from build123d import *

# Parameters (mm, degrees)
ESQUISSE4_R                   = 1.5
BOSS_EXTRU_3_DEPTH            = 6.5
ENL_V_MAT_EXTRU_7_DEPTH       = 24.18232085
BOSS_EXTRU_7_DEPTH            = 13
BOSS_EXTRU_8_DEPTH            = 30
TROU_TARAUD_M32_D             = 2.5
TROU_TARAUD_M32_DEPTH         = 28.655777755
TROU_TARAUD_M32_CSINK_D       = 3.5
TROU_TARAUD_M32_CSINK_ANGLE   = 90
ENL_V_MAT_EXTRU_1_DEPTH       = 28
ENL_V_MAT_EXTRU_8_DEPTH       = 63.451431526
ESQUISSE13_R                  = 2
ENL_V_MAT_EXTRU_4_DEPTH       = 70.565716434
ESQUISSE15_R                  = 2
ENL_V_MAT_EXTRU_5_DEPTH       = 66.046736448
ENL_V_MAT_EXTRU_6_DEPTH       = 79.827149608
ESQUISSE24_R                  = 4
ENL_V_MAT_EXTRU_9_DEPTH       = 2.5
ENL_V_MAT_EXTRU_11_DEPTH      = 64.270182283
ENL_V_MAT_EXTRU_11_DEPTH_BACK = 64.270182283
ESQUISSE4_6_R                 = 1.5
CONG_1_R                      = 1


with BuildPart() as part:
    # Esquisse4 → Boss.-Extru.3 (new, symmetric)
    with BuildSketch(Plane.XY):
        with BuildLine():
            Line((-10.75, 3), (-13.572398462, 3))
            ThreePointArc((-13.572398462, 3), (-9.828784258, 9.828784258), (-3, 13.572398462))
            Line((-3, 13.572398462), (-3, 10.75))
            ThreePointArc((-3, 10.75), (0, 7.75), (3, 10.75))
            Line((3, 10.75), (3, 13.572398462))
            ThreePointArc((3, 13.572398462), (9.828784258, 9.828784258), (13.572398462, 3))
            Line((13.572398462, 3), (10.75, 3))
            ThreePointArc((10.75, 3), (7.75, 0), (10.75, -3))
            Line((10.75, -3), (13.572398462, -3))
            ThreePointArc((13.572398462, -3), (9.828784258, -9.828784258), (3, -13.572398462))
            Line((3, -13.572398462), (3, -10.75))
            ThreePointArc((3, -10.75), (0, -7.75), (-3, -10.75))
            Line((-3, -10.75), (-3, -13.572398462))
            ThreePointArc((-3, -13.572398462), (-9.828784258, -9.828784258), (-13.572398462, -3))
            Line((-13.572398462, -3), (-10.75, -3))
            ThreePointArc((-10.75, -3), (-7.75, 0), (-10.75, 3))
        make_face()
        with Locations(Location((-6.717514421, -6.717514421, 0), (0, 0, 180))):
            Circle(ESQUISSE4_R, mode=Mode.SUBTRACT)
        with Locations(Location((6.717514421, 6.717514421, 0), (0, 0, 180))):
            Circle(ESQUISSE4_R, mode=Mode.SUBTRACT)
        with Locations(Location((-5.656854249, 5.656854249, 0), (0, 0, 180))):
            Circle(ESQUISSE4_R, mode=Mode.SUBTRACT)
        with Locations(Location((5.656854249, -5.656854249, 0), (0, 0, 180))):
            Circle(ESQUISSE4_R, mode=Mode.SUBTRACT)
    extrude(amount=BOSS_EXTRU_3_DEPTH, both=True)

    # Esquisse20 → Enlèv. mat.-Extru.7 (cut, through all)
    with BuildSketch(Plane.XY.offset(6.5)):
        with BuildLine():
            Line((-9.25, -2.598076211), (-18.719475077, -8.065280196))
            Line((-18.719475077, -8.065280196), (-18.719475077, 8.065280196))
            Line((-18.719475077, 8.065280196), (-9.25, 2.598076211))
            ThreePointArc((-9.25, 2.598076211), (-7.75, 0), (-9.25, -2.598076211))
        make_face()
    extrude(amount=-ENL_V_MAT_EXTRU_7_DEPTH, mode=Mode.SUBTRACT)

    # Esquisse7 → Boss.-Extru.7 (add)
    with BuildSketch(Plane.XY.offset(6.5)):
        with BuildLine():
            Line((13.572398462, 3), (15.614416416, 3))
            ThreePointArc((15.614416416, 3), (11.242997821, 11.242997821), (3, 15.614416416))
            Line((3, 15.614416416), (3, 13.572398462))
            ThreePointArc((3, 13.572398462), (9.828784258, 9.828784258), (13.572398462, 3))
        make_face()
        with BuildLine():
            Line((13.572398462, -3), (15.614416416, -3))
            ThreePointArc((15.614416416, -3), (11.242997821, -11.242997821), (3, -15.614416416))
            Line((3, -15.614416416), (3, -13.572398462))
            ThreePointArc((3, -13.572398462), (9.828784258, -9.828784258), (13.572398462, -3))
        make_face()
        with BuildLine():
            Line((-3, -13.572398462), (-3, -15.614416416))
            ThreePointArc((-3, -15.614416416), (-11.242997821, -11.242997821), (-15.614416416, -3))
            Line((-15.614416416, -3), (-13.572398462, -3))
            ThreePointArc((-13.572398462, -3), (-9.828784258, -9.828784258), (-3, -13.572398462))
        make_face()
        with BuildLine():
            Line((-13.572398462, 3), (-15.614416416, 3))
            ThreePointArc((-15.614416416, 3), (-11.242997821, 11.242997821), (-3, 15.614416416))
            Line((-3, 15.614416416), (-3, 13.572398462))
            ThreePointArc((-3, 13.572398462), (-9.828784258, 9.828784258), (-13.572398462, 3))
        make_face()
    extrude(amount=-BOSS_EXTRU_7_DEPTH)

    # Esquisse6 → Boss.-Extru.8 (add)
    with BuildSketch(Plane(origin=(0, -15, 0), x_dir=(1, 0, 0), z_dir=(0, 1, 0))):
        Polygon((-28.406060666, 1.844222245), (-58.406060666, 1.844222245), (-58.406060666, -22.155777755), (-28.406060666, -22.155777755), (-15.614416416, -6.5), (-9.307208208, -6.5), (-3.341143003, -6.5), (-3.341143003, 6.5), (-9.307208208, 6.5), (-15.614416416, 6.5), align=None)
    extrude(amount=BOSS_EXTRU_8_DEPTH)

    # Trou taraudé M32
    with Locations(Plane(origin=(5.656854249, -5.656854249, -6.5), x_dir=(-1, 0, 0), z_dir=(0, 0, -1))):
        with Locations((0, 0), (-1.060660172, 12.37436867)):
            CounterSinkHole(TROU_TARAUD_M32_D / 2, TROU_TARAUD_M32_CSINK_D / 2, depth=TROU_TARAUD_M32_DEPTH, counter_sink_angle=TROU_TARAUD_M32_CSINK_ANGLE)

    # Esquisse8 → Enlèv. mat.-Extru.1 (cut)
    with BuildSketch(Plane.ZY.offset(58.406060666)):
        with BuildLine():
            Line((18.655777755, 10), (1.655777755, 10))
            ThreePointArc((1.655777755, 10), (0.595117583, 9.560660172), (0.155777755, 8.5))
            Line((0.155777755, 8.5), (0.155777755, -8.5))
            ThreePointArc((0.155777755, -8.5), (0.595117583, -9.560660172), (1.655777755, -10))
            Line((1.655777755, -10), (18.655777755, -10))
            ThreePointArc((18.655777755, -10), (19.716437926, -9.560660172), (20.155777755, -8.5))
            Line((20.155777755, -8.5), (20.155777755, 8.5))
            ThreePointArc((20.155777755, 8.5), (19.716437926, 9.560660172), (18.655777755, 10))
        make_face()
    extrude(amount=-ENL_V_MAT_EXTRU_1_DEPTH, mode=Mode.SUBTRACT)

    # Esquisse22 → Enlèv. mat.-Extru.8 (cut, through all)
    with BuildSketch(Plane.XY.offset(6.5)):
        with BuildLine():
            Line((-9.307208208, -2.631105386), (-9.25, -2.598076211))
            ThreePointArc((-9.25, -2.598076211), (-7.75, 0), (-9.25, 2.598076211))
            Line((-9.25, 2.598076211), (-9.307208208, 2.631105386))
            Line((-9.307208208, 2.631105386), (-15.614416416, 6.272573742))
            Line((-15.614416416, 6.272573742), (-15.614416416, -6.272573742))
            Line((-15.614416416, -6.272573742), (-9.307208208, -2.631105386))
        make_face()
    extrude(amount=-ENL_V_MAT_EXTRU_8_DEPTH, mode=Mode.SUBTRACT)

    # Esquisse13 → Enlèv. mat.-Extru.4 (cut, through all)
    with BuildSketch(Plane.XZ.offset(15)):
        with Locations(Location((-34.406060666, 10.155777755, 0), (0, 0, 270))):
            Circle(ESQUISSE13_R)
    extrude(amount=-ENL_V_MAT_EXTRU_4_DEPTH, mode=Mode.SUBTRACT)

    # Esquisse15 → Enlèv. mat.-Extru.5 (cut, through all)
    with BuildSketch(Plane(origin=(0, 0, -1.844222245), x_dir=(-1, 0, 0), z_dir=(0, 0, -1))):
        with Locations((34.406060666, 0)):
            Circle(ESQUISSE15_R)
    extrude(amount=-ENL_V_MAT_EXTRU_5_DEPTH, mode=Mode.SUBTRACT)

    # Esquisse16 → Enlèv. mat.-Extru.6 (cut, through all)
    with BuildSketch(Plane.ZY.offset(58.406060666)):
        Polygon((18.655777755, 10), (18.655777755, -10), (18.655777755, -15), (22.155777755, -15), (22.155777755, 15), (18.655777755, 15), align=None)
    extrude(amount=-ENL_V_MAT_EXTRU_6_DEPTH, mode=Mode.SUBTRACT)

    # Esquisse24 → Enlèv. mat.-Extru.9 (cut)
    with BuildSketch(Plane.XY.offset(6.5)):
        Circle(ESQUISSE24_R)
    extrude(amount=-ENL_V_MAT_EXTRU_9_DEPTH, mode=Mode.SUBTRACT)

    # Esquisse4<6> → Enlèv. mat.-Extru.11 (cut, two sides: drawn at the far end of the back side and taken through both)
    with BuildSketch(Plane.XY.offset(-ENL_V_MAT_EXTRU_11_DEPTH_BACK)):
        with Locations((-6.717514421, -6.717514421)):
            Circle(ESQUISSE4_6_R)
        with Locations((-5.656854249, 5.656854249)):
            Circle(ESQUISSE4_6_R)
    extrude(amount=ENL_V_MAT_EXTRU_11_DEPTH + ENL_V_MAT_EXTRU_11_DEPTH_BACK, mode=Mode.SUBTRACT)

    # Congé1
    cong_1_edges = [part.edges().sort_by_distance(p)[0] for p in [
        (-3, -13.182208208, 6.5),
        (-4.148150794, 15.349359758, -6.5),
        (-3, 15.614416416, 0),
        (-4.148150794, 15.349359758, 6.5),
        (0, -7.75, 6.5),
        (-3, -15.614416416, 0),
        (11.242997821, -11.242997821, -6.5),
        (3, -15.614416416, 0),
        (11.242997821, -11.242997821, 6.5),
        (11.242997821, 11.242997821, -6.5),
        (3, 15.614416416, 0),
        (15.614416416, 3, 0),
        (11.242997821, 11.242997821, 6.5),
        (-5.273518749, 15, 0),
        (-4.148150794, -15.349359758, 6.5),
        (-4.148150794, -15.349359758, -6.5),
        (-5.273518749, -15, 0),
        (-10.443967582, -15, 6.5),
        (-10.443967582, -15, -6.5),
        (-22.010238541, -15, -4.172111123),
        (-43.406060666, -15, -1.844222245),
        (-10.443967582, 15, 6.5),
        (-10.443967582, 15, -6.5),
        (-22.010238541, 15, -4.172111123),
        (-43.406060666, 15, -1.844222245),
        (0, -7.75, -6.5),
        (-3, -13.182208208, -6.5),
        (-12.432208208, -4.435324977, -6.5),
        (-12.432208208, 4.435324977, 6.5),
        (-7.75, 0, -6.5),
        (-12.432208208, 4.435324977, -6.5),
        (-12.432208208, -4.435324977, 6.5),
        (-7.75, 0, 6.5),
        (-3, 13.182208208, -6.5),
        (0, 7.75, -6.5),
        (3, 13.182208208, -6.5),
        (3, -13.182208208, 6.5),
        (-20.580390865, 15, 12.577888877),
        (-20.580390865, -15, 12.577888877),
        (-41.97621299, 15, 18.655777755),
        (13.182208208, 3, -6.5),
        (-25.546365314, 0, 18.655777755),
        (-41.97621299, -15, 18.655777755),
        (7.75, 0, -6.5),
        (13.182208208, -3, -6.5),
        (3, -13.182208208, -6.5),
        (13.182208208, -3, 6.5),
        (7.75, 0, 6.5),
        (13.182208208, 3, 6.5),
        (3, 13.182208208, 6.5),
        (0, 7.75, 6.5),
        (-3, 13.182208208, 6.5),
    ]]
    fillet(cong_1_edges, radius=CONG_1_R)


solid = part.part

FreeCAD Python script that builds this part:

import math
import FreeCAD as App
import Part
import Sketcher
Q = App.Units.Quantity


def edges_at(feature, points):
    """Names of the edges that pass closest to the given points."""
    edges = feature.Shape.Edges
    near = lambda p: min(range(len(edges)), key=lambda i: edges[i].distToShape(Part.Vertex(*p))[0])
    return sorted({f"Edge{near(p) + 1}" for p in points})

doc = App.newDocument("Part")
body = doc.addObject("PartDesign::Body", "Body")

sketch1 = body.newObject("Sketcher::SketchObject", "Sketch")
sketch1.AttachmentSupport = (doc.getObject("XY_Plane"), [""])
sketch1.MapMode = "FlatFace"
sketch1.addGeometry(Part.LineSegment(App.Vector(-13.6, 3, 0), App.Vector(-10.8, 3, 0)), False)
sketch1.addGeometry(Part.ArcOfCircle(Part.Circle(App.Vector(-10.8, 0, 0), App.Vector(0, 0, 1), 3), math.radians(-90), math.radians(90)), False)
sketch1.addGeometry(Part.LineSegment(App.Vector(-10.8, -3, 0), App.Vector(-13.6, -3, 0)), False)
sketch1.addGeometry(Part.ArcOfCircle(Part.Circle(App.Vector(0, 0, 0), App.Vector(0, 0, 1), 13.9), math.radians(-168), math.radians(-102)), False)
sketch1.addGeometry(Part.LineSegment(App.Vector(-3, -13.6, 0), App.Vector(-3, -10.8, 0)), False)
sketch1.addGeometry(Part.ArcOfCircle(Part.Circle(App.Vector(0, -10.8, 0), App.Vector(0, 0, 1), 3), math.radians(0), math.radians(180)), False)
sketch1.addGeometry(Part.LineSegment(App.Vector(3, -10.8, 0), App.Vector(3, -13.6, 0)), False)
sketch1.addGeometry(Part.ArcOfCircle(Part.Circle(App.Vector(0, 0, 0), App.Vector(0, 0, 1), 13.9), math.radians(-78), math.radians(-12)), False)
sketch1.addGeometry(Part.LineSegment(App.Vector(13.6, -3, 0), App.Vector(10.8, -3, 0)), False)
sketch1.addGeometry(Part.ArcOfCircle(Part.Circle(App.Vector(10.8, 0, 0), App.Vector(0, 0, 1), 3), math.radians(90), math.radians(270)), False)
sketch1.addGeometry(Part.LineSegment(App.Vector(10.8, 3, 0), App.Vector(13.6, 3, 0)), False)
sketch1.addGeometry(Part.ArcOfCircle(Part.Circle(App.Vector(0, 0, 0), App.Vector(0, 0, 1), 13.9), math.radians(12), math.radians(78)), False)
sketch1.addGeometry(Part.LineSegment(App.Vector(3, 13.6, 0), App.Vector(3, 10.8, 0)), False)
sketch1.addGeometry(Part.ArcOfCircle(Part.Circle(App.Vector(0, 10.8, 0), App.Vector(0, 0, 1), 3), math.radians(180), math.radians(360)), False)
sketch1.addGeometry(Part.LineSegment(App.Vector(-3, 10.8, 0), App.Vector(-3, 13.6, 0)), False)
sketch1.addGeometry(Part.ArcOfCircle(Part.Circle(App.Vector(0, 0, 0), App.Vector(0, 0, 1), 13.9), math.radians(102), math.radians(168)), False)
sketch1.addGeometry(Part.Circle(App.Vector(5.7, -5.7, 0), App.Vector(0, 0, 1), 1.5), False)
sketch1.addGeometry(Part.Circle(App.Vector(-6.7, -6.7, 0), App.Vector(0, 0, 1), 1.5), False)
sketch1.addGeometry(Part.Circle(App.Vector(6.7, 6.7, 0), App.Vector(0, 0, 1), 1.5), False)
sketch1.addGeometry(Part.Circle(App.Vector(-5.7, 5.7, 0), App.Vector(0, 0, 1), 1.5), False)
sketch1.addConstraint(Sketcher.Constraint("Tangent", 0, 2, 1, 2))
sketch1.addConstraint(Sketcher.Constraint("Tangent", 1, 1, 2, 1))
sketch1.addConstraint(Sketcher.Constraint("Coincident", 2, 2, 3, 1))
sketch1.addConstraint(Sketcher.Constraint("Coincident", 3, 2, 4, 1))
sketch1.addConstraint(Sketcher.Constraint("Tangent", 4, 2, 5, 2))
sketch1.addConstraint(Sketcher.Constraint("Tangent", 5, 1, 6, 1))
sketch1.addConstraint(Sketcher.Constraint("Coincident", 6, 2, 7, 1))
sketch1.addConstraint(Sketcher.Constraint("Coincident", 7, 2, 8, 1))
sketch1.addConstraint(Sketcher.Constraint("Tangent", 8, 2, 9, 2))
sketch1.addConstraint(Sketcher.Constraint("Tangent", 9, 1, 10, 1))
sketch1.addConstraint(Sketcher.Constraint("Coincident", 10, 2, 11, 1))
sketch1.addConstraint(Sketcher.Constraint("Coincident", 11, 2, 12, 1))
sketch1.addConstraint(Sketcher.Constraint("Tangent", 12, 2, 13, 2))
sketch1.addConstraint(Sketcher.Constraint("Tangent", 13, 1, 14, 1))
sketch1.addConstraint(Sketcher.Constraint("Coincident", 14, 2, 15, 1))
sketch1.addConstraint(Sketcher.Constraint("Coincident", 15, 2, 0, 1))
sketch1.addConstraint(Sketcher.Constraint("Horizontal", 0))
sketch1.addConstraint(Sketcher.Constraint("Horizontal", 2))
sketch1.addConstraint(Sketcher.Constraint("Vertical", 4))
sketch1.addConstraint(Sketcher.Constraint("Vertical", 6))
sketch1.addConstraint(Sketcher.Constraint("Horizontal", 8))
sketch1.addConstraint(Sketcher.Constraint("Horizontal", 10))
sketch1.addConstraint(Sketcher.Constraint("Vertical", 12))
sketch1.addConstraint(Sketcher.Constraint("Vertical", 14))
sketch1.addConstraint(Sketcher.Constraint("Coincident", 3, 3, -1, 1))
sketch1.addConstraint(Sketcher.Constraint("Coincident", 7, 3, -1, 1))
sketch1.addConstraint(Sketcher.Constraint("Coincident", 11, 3, -1, 1))
sketch1.addConstraint(Sketcher.Constraint("Coincident", 15, 3, -1, 1))
sketch1.addConstraint(Sketcher.Constraint("Equal", 1, 5))
sketch1.addConstraint(Sketcher.Constraint("Equal", 3, 7))
sketch1.addConstraint(Sketcher.Constraint("Equal", 5, 9))
sketch1.addConstraint(Sketcher.Constraint("Equal", 7, 11))
sketch1.addConstraint(Sketcher.Constraint("Equal", 9, 13))
sketch1.addConstraint(Sketcher.Constraint("Equal", 11, 15))
sketch1.addConstraint(Sketcher.Constraint("Equal", 16, 17))
sketch1.addConstraint(Sketcher.Constraint("Equal", 17, 18))
sketch1.addConstraint(Sketcher.Constraint("Equal", 18, 19))
sketch1.addConstraint(Sketcher.Constraint("Symmetric", 1, 3, 9, 3, -1, 1))
sketch1.addConstraint(Sketcher.Constraint("Symmetric", 5, 3, 13, 3, -1, 1))
sketch1.addConstraint(Sketcher.Constraint("Symmetric", 17, 3, 18, 3, -1, 1))
sketch1.addConstraint(Sketcher.Constraint("Symmetric", 16, 3, 19, 3, -1, 1))
sketch1.addConstraint(Sketcher.Constraint("PointOnObject", 1, 3, -1))
sketch1.addConstraint(Sketcher.Constraint("PointOnObject", 5, 3, -2))
sketch1.addConstraint(Sketcher.Constraint("Equal", 10, 4))
sketch1.addConstraint(Sketcher.Constraint("Diameter", 16, Q("3 mm")))
sketch1.addConstraint(Sketcher.Constraint("Radius", 1, Q("3 mm")))
sketch1.addConstraint(Sketcher.Constraint("Radius", 3, Q("13.9 mm")))
sketch1.addConstraint(Sketcher.Constraint("DistanceX", 1, 3, 9, 3, Q("21.5 mm")))
sketch1.addConstraint(Sketcher.Constraint("DistanceX", -1, 1, 16, 3, Q("5.656854 mm")))
sketch1.addConstraint(Sketcher.Constraint("DistanceY", 16, 3, -1, 1, Q("5.656854 mm")))
sketch1.addConstraint(Sketcher.Constraint("DistanceX", 17, 3, -1, 1, Q("6.717514 mm")))
sketch1.addConstraint(Sketcher.Constraint("DistanceY", 17, 3, -1, 1, Q("6.717514 mm")))
pad1 = body.newObject("PartDesign::Pad", "Pad")
pad1.Profile = sketch1
pad1.Length = 13
pad1.Midplane = True

sketch2 = body.newObject("Sketcher::SketchObject", "Sketch001")
sketch2.AttachmentSupport = (doc.getObject("XY_Plane"), [""])
sketch2.MapMode = "FlatFace"
sketch2.AttachmentOffset = App.Placement(App.Vector(0, 0, 6.5), App.Rotation())
sketch2.addGeometry(Part.LineSegment(App.Vector(-18.7, -8.1, 0), App.Vector(-9.2, -2.6, 0)), False)
sketch2.addGeometry(Part.ArcOfCircle(Part.Circle(App.Vector(-10.7, 0, 0), App.Vector(0, 0, 1), 3), math.radians(-60), math.radians(60)), False)
sketch2.addGeometry(Part.LineSegment(App.Vector(-9.2, 2.6, 0), App.Vector(-18.7, 8.1, 0)), False)
sketch2.addGeometry(Part.LineSegment(App.Vector(-18.7, 8.1, 0), App.Vector(-18.7, -8.1, 0)), False)
sketch2.addConstraint(Sketcher.Constraint("Tangent", 0, 2, 1, 1))
sketch2.addConstraint(Sketcher.Constraint("Tangent", 1, 2, 2, 1))
sketch2.addConstraint(Sketcher.Constraint("Coincident", 2, 2, 3, 1))
sketch2.addConstraint(Sketcher.Constraint("Coincident", 3, 2, 0, 1))
sketch2.addConstraint(Sketcher.Constraint("Vertical", 3))
sketch2.addConstraint(Sketcher.Constraint("Symmetric", 0, 2, 1, 2, -1))
sketch2.addConstraint(Sketcher.Constraint("Radius", 1, Q("3 mm")))
sketch2.addConstraint(Sketcher.Constraint("Angle", 0, Q("30 deg")))
sketch2.addConstraint(Sketcher.Constraint("DistanceX", 1, 3, -1, 1, Q("10.75 mm")))
sketch2.addConstraint(Sketcher.Constraint("DistanceY", 3, 2, 3, 1, Q("16.13056 mm")))
pocket1 = body.newObject("PartDesign::Pocket", "Pocket")
pocket1.Profile = sketch2
pocket1.Type = "ThroughAll"

sketch3 = body.newObject("Sketcher::SketchObject", "Sketch002")
sketch3.AttachmentSupport = (doc.getObject("XY_Plane"), [""])
sketch3.MapMode = "FlatFace"
sketch3.AttachmentOffset = App.Placement(App.Vector(0, 0, 6.5), App.Rotation())
sketch3.addGeometry(Part.LineSegment(App.Vector(13.6, 3, 0), App.Vector(15.6, 3, 0)), False)
sketch3.addGeometry(Part.ArcOfCircle(Part.Circle(App.Vector(0, 0, 0), App.Vector(0, 0, 1), 15.9), math.radians(11), math.radians(79)), False)
sketch3.addGeometry(Part.LineSegment(App.Vector(3, 15.6, 0), App.Vector(3, 13.6, 0)), False)
sketch3.addGeometry(Part.ArcOfCircle(Part.Circle(App.Vector(0, 0, 0), App.Vector(0, 0, 1), 13.9), math.radians(12), math.radians(78)), False)
sketch3.addGeometry(Part.LineSegment(App.Vector(15.6, -3, 0), App.Vector(13.6, -3, 0)), False)
sketch3.addGeometry(Part.ArcOfCircle(Part.Circle(App.Vector(0, 0, 0), App.Vector(0, 0, 1), 13.9), math.radians(-78), math.radians(-12)), False)
sketch3.addGeometry(Part.LineSegment(App.Vector(3, -13.6, 0), App.Vector(3, -15.6, 0)), False)
sketch3.addGeometry(Part.ArcOfCircle(Part.Circle(App.Vector(0, 0, 0), App.Vector(0, 0, 1), 15.9), math.radians(-79), math.radians(-11)), False)
sketch3.addGeometry(Part.LineSegment(App.Vector(-3, -15.6, 0), App.Vector(-3, -13.6, 0)), False)
sketch3.addGeometry(Part.ArcOfCircle(Part.Circle(App.Vector(0, 0, 0), App.Vector(0, 0, 1), 13.9), math.radians(-168), math.radians(-102)), False)
sketch3.addGeometry(Part.LineSegment(App.Vector(-13.6, -3, 0), App.Vector(-15.6, -3, 0)), False)
sketch3.addGeometry(Part.ArcOfCircle(Part.Circle(App.Vector(0, 0, 0), App.Vector(0, 0, 1), 15.9), math.radians(-169), math.radians(-101)), False)
sketch3.addGeometry(Part.LineSegment(App.Vector(-15.6, 3, 0), App.Vector(-13.6, 3, 0)), False)
sketch3.addGeometry(Part.ArcOfCircle(Part.Circle(App.Vector(0, 0, 0), App.Vector(0, 0, 1), 13.9), math.radians(102), math.radians(168)), False)
sketch3.addGeometry(Part.LineSegment(App.Vector(-3, 13.6, 0), App.Vector(-3, 15.6, 0)), False)
sketch3.addGeometry(Part.ArcOfCircle(Part.Circle(App.Vector(0, 0, 0), App.Vector(0, 0, 1), 15.9), math.radians(101), math.radians(169)), False)
sketch3.addConstraint(Sketcher.Constraint("Coincident", 0, 2, 1, 1))
sketch3.addConstraint(Sketcher.Constraint("Coincident", 1, 2, 2, 1))
sketch3.addConstraint(Sketcher.Constraint("Coincident", 2, 2, 3, 2))
sketch3.addConstraint(Sketcher.Constraint("Coincident", 3, 1, 0, 1))
sketch3.addConstraint(Sketcher.Constraint("Coincident", 4, 2, 5, 2))
sketch3.addConstraint(Sketcher.Constraint("Coincident", 5, 1, 6, 1))
sketch3.addConstraint(Sketcher.Constraint("Coincident", 6, 2, 7, 1))
sketch3.addConstraint(Sketcher.Constraint("Coincident", 7, 2, 4, 1))
sketch3.addConstraint(Sketcher.Constraint("Coincident", 8, 2, 9, 2))
sketch3.addConstraint(Sketcher.Constraint("Coincident", 9, 1, 10, 1))
sketch3.addConstraint(Sketcher.Constraint("Coincident", 10, 2, 11, 1))
sketch3.addConstraint(Sketcher.Constraint("Coincident", 11, 2, 8, 1))
sketch3.addConstraint(Sketcher.Constraint("Coincident", 12, 2, 13, 2))
sketch3.addConstraint(Sketcher.Constraint("Coincident", 13, 1, 14, 1))
sketch3.addConstraint(Sketcher.Constraint("Coincident", 14, 2, 15, 1))
sketch3.addConstraint(Sketcher.Constraint("Coincident", 15, 2, 12, 1))
sketch3.addConstraint(Sketcher.Constraint("Horizontal", 0))
sketch3.addConstraint(Sketcher.Constraint("Vertical", 2))
sketch3.addConstraint(Sketcher.Constraint("Horizontal", 4))
sketch3.addConstraint(Sketcher.Constraint("Vertical", 6))
sketch3.addConstraint(Sketcher.Constraint("Vertical", 8))
sketch3.addConstraint(Sketcher.Constraint("Horizontal", 10))
sketch3.addConstraint(Sketcher.Constraint("Horizontal", 12))
sketch3.addConstraint(Sketcher.Constraint("Vertical", 14))
sketch3.addConstraint(Sketcher.Constraint("Coincident", 1, 3, -1, 1))
sketch3.addConstraint(Sketcher.Constraint("Coincident", 3, 3, -1, 1))
sketch3.addConstraint(Sketcher.Constraint("Coincident", 5, 3, -1, 1))
sketch3.addConstraint(Sketcher.Constraint("Coincident", 7, 3, -1, 1))
sketch3.addConstraint(Sketcher.Constraint("Coincident", 9, 3, -1, 1))
sketch3.addConstraint(Sketcher.Constraint("Coincident", 11, 3, -1, 1))
sketch3.addConstraint(Sketcher.Constraint("Coincident", 13, 3, -1, 1))
sketch3.addConstraint(Sketcher.Constraint("Coincident", 15, 3, -1, 1))
sketch3.addConstraint(Sketcher.Constraint("Equal", 3, 5))
sketch3.addConstraint(Sketcher.Constraint("Equal", 1, 7))
sketch3.addConstraint(Sketcher.Constraint("Equal", 5, 9))
sketch3.addConstraint(Sketcher.Constraint("Equal", 7, 11))
sketch3.addConstraint(Sketcher.Constraint("Equal", 9, 13))
sketch3.addConstraint(Sketcher.Constraint("Equal", 11, 15))
sketch3.addConstraint(Sketcher.Constraint("Horizontal", 5, 1, 8, 2))
sketch3.addConstraint(Sketcher.Constraint("Horizontal", 7, 2, 9, 1))
sketch3.addConstraint(Sketcher.Constraint("Horizontal", 3, 1, 12, 2))
sketch3.addConstraint(Sketcher.Constraint("Horizontal", 2, 2, 13, 1))
sketch3.addConstraint(Sketcher.Constraint("Vertical", 3, 1, 4, 2))
sketch3.addConstraint(Sketcher.Constraint("Vertical", 2, 2, 5, 1))
sketch3.addConstraint(Sketcher.Constraint("Equal", 12, 2))
sketch3.addConstraint(Sketcher.Constraint("Radius", 1, Q("15.9 mm")))
sketch3.addConstraint(Sketcher.Constraint("Radius", 3, Q("13.9 mm")))
sketch3.addConstraint(Sketcher.Constraint("DistanceY", -1, 1, 0, 2, Q("3 mm")))
pad2 = body.newObject("PartDesign::Pad", "Pad001")
pad2.Profile = sketch3
pad2.Length = 13
pad2.Reversed = True

sketch4 = body.newObject("Sketcher::SketchObject", "Sketch003")
sketch4.AttachmentSupport = (doc.getObject("XZ_Plane"), [""])
sketch4.MapMode = "FlatFace"
sketch4.AttachmentOffset = App.Placement(App.Vector(0, 0, 15), App.Rotation())
sketch4.addGeometry(Part.LineSegment(App.Vector(-28, -2, 0), App.Vector(-58, -2, 0)), False)
sketch4.addGeometry(Part.LineSegment(App.Vector(-58, -2, 0), App.Vector(-58, 22, 0)), False)
sketch4.addGeometry(Part.LineSegment(App.Vector(-58, 22, 0), App.Vector(-28, 22, 0)), False)
sketch4.addGeometry(Part.LineSegment(App.Vector(-28, 22, 0), App.Vector(-16, 6, 0)), False)
sketch4.addGeometry(Part.LineSegment(App.Vector(-16, 6, 0), App.Vector(-3, 6, 0)), False)
sketch4.addGeometry(Part.LineSegment(App.Vector(-3, 6, 0), App.Vector(-3, -6, 0)), False)
sketch4.addGeometry(Part.LineSegment(App.Vector(-3, -6, 0), App.Vector(-16, -6, 0)), False)
sketch4.addGeometry(Part.LineSegment(App.Vector(-16, -6, 0), App.Vector(-28, -2, 0)), False)
sketch4.addConstraint(Sketcher.Constraint("Coincident", 0, 2, 1, 1))
sketch4.addConstraint(Sketcher.Constraint("Coincident", 1, 2, 2, 1))
sketch4.addConstraint(Sketcher.Constraint("Coincident", 2, 2, 3, 1))
sketch4.addConstraint(Sketcher.Constraint("Coincident", 3, 2, 4, 1))
sketch4.addConstraint(Sketcher.Constraint("Coincident", 4, 2, 5, 1))
sketch4.addConstraint(Sketcher.Constraint("Coincident", 5, 2, 6, 1))
sketch4.addConstraint(Sketcher.Constraint("Coincident", 6, 2, 7, 1))
sketch4.addConstraint(Sketcher.Constraint("Coincident", 7, 2, 0, 1))
sketch4.addConstraint(Sketcher.Constraint("Horizontal", 0))
sketch4.addConstraint(Sketcher.Constraint("Vertical", 1))
sketch4.addConstraint(Sketcher.Constraint("Horizontal", 2))
sketch4.addConstraint(Sketcher.Constraint("Horizontal", 4))
sketch4.addConstraint(Sketcher.Constraint("Vertical", 5))
sketch4.addConstraint(Sketcher.Constraint("Horizontal", 6))
sketch4.addConstraint(Sketcher.Constraint("Symmetric", 3, 2, 6, 2, -1))
sketch4.addConstraint(Sketcher.Constraint("Vertical", 2, 2, 7, 2))
sketch4.addConstraint(Sketcher.Constraint("DistanceX", 0, 2, 0, 1, Q("30 mm")))
sketch4.addConstraint(Sketcher.Constraint("DistanceY", 1, 1, 1, 2, Q("24 mm")))
sketch4.addConstraint(Sketcher.Constraint("DistanceY", 5, 2, 5, 1, Q("13 mm")))
sketch4.addConstraint(Sketcher.Constraint("Angle", 7, Q("160 deg")))
sketch4.addConstraint(Sketcher.Constraint("Distance", 3, Q("20.217061 mm")))
sketch4.addConstraint(Sketcher.Constraint("DistanceX", 4, 1, 4, 2, Q("12.273273 mm")))
sketch4.addConstraint(Sketcher.Constraint("DistanceX", 0, 2, -1, 1, Q("58.406061 mm")))
pad3 = body.newObject("PartDesign::Pad", "Pad002")
pad3.Profile = sketch4
pad3.Length = 30
pad3.Reversed = True

sketch5 = body.newObject("Sketcher::SketchObject", "Sketch004")
sketch5.AttachmentSupport = (doc.getObject("XY_Plane"), [""])
sketch5.MapMode = "FlatFace"
sketch5.AttachmentOffset = App.Placement(App.Vector(0, 0, -6.5), App.Rotation())
sketch5.addGeometry(Part.Circle(App.Vector(5.7, -5.7, 0), App.Vector(0, 0, 1), 1.2), False)
sketch5.addGeometry(Part.Circle(App.Vector(6.7, 6.7, 0), App.Vector(0, 0, 1), 1.2), False)
sketch5.addConstraint(Sketcher.Constraint("Equal", 0, 1))
sketch5.addConstraint(Sketcher.Constraint("Diameter", 0, Q("2.5 mm")))
sketch5.addConstraint(Sketcher.Constraint("DistanceX", 0, 3, 1, 3, Q("1.06066 mm")))
sketch5.addConstraint(Sketcher.Constraint("DistanceY", 0, 3, 1, 3, Q("12.374369 mm")))
sketch5.addConstraint(Sketcher.Constraint("DistanceX", -1, 1, 0, 3, Q("5.656854 mm")))
sketch5.addConstraint(Sketcher.Constraint("DistanceY", 0, 3, -1, 1, Q("5.656854 mm")))
doc.recompute()
hole = body.newObject("PartDesign::Hole", "Hole")
hole.Profile = sketch5
hole.ThreadType = "None"
hole.Diameter = 2.5
hole.DepthType = "Dimension"
hole.Depth = 28.655778
hole.DrillPoint = "Flat"
hole.HoleCutType = "Countersink"
hole.HoleCutDiameter = 3.5
hole.HoleCutCountersinkAngle = 90
hole.Reversed = True

sketch6 = body.newObject("Sketcher::SketchObject", "Sketch005")
sketch6.AttachmentSupport = (doc.getObject("YZ_Plane"), [""])
sketch6.MapMode = "FlatFace"
sketch6.AttachmentOffset = App.Placement(App.Vector(0, 0, -58.406061), App.Rotation())
sketch6.addGeometry(Part.LineSegment(App.Vector(10, 18.7, 0), App.Vector(10, 1.7, 0)), False)
sketch6.addGeometry(Part.ArcOfCircle(Part.Circle(App.Vector(8.5, 1.7, 0), App.Vector(0, 0, 1), 1.5), math.radians(-90), math.radians(0)), False)
sketch6.addGeometry(Part.LineSegment(App.Vector(8.5, 0.2, 0), App.Vector(-8.5, 0.2, 0)), False)
sketch6.addGeometry(Part.ArcOfCircle(Part.Circle(App.Vector(-8.5, 1.7, 0), App.Vector(0, 0, 1), 1.5), math.radians(180), math.radians(270)), False)
sketch6.addGeometry(Part.LineSegment(App.Vector(-10, 1.7, 0), App.Vector(-10, 18.7, 0)), False)
sketch6.addGeometry(Part.ArcOfCircle(Part.Circle(App.Vector(-8.5, 18.7, 0), App.Vector(0, 0, 1), 1.5), math.radians(90), math.radians(180)), False)
sketch6.addGeometry(Part.LineSegment(App.Vector(-8.5, 20.2, 0), App.Vector(8.5, 20.2, 0)), False)
sketch6.addGeometry(Part.ArcOfCircle(Part.Circle(App.Vector(8.5, 18.7, 0), App.Vector(0, 0, 1), 1.5), math.radians(0), math.radians(90)), False)
sketch6.addConstraint(Sketcher.Constraint("Tangent", 0, 2, 1, 2))
sketch6.addConstraint(Sketcher.Constraint("Tangent", 1, 1, 2, 1))
sketch6.addConstraint(Sketcher.Constraint("Tangent", 2, 2, 3, 2))
sketch6.addConstraint(Sketcher.Constraint("Tangent", 3, 1, 4, 1))
sketch6.addConstraint(Sketcher.Constraint("Tangent", 4, 2, 5, 2))
sketch6.addConstraint(Sketcher.Constraint("Tangent", 5, 1, 6, 1))
sketch6.addConstraint(Sketcher.Constraint("Tangent", 6, 2, 7, 2))
sketch6.addConstraint(Sketcher.Constraint("Tangent", 7, 1, 0, 1))
sketch6.addConstraint(Sketcher.Constraint("Vertical", 0))
sketch6.addConstraint(Sketcher.Constraint("Horizontal", 2))
sketch6.addConstraint(Sketcher.Constraint("Vertical", 4))
sketch6.addConstraint(Sketcher.Constraint("Horizontal", 6))
sketch6.addConstraint(Sketcher.Constraint("Equal", 1, 3))
sketch6.addConstraint(Sketcher.Constraint("Equal", 3, 5))
sketch6.addConstraint(Sketcher.Constraint("Equal", 5, 7))
sketch6.addConstraint(Sketcher.Constraint("Equal", 6, 0))
sketch6.addConstraint(Sketcher.Constraint("Radius", 1, Q("1.5 mm")))
sketch6.addConstraint(Sketcher.Constraint("DistanceX", 2, 2, 2, 1, Q("17 mm")))
sketch6.addConstraint(Sketcher.Constraint("DistanceX", -1, 1, 0, 2, Q("10 mm")))
sketch6.addConstraint(Sketcher.Constraint("DistanceY", -1, 1, 1, 3, Q("1.655778 mm")))
pocket2 = body.newObject("PartDesign::Pocket", "Pocket001")
pocket2.Profile = sketch6
pocket2.Length = 28
pocket2.Reversed = True

sketch7 = body.newObject("Sketcher::SketchObject", "Sketch006")
sketch7.AttachmentSupport = (doc.getObject("XY_Plane"), [""])
sketch7.MapMode = "FlatFace"
sketch7.AttachmentOffset = App.Placement(App.Vector(0, 0, 6.5), App.Rotation())
sketch7.addGeometry(Part.LineSegment(App.Vector(-9.31, -2.63, 0), App.Vector(-9.25, -2.6, 0)), False)
sketch7.addGeometry(Part.ArcOfCircle(Part.Circle(App.Vector(-10.75, 0, 0), App.Vector(0, 0, 1), 3), math.radians(-60), math.radians(60)), False)
sketch7.addGeometry(Part.LineSegment(App.Vector(-9.25, 2.6, 0), App.Vector(-9.31, 2.63, 0)), False)
sketch7.addGeometry(Part.LineSegment(App.Vector(-9.31, 2.63, 0), App.Vector(-15.61, 6.27, 0)), False)
sketch7.addGeometry(Part.LineSegment(App.Vector(-15.61, 6.27, 0), App.Vector(-15.61, -6.27, 0)), False)
sketch7.addGeometry(Part.LineSegment(App.Vector(-15.61, -6.27, 0), App.Vector(-9.31, -2.63, 0)), False)
sketch7.addConstraint(Sketcher.Constraint("Tangent", 0, 2, 1, 1))
sketch7.addConstraint(Sketcher.Constraint("Tangent", 1, 2, 2, 1))
sketch7.addConstraint(Sketcher.Constraint("Coincident", 2, 2, 3, 1))
sketch7.addConstraint(Sketcher.Constraint("Coincident", 3, 2, 4, 1))
sketch7.addConstraint(Sketcher.Constraint("Coincident", 4, 2, 5, 1))
sketch7.addConstraint(Sketcher.Constraint("Coincident", 5, 2, 0, 1))
sketch7.addConstraint(Sketcher.Constraint("Vertical", 4))
sketch7.addConstraint(Sketcher.Constraint("Symmetric", 0, 2, 1, 2, -1))
sketch7.addConstraint(Sketcher.Constraint("Parallel", 2, 3))
sketch7.addConstraint(Sketcher.Constraint("Parallel", 0, 5))
sketch7.addConstraint(Sketcher.Constraint("Vertical", 2, 2, 5, 2))
sketch7.addConstraint(Sketcher.Constraint("Radius", 1, Q("3 mm")))
sketch7.addConstraint(Sketcher.Constraint("Angle", 0, Q("30.000001 deg")))
sketch7.addConstraint(Sketcher.Constraint("DistanceX", 1, 3, -1, 1, Q("10.75 mm")))
sketch7.addConstraint(Sketcher.Constraint("Distance", 0, Q("0.066058 mm")))
sketch7.addConstraint(Sketcher.Constraint("DistanceY", 4, 2, 4, 1, Q("12.545147 mm")))
pocket3 = body.newObject("PartDesign::Pocket", "Pocket002")
pocket3.Profile = sketch7
pocket3.Type = "ThroughAll"

sketch8 = body.newObject("Sketcher::SketchObject", "Sketch007")
sketch8.AttachmentSupport = (doc.getObject("XZ_Plane"), [""])
sketch8.MapMode = "FlatFace"
sketch8.AttachmentOffset = App.Placement(App.Vector(0, 0, 15), App.Rotation())
sketch8.addGeometry(Part.Circle(App.Vector(-34.4, 10.2, 0), App.Vector(0, 0, 1), 2), False)
sketch8.addConstraint(Sketcher.Constraint("Diameter", 0, Q("4 mm")))
sketch8.addConstraint(Sketcher.Constraint("DistanceX", 0, 3, -1, 1, Q("34.406061 mm")))
sketch8.addConstraint(Sketcher.Constraint("DistanceY", -1, 1, 0, 3, Q("10.155778 mm")))
pocket4 = body.newObject("PartDesign::Pocket", "Pocket003")
pocket4.Profile = sketch8
pocket4.Type = "ThroughAll"

sketch9 = body.newObject("Sketcher::SketchObject", "Sketch008")
sketch9.AttachmentSupport = (doc.getObject("XY_Plane"), [""])
sketch9.MapMode = "FlatFace"
sketch9.AttachmentOffset = App.Placement(App.Vector(0, 0, -1.844222), App.Rotation())
sketch9.addGeometry(Part.Circle(App.Vector(-34.4, 0, 0), App.Vector(0, 0, 1), 2), False)
sketch9.addConstraint(Sketcher.Constraint("PointOnObject", 0, 3, -1))
sketch9.addConstraint(Sketcher.Constraint("Diameter", 0, Q("4 mm")))
sketch9.addConstraint(Sketcher.Constraint("DistanceX", 0, 3, -1, 1, Q("34.406061 mm")))
pocket5 = body.newObject("PartDesign::Pocket", "Pocket004")
pocket5.Profile = sketch9
pocket5.Type = "ThroughAll"
pocket5.Reversed = True

sketch10 = body.newObject("Sketcher::SketchObject", "Sketch009")
sketch10.AttachmentSupport = (doc.getObject("YZ_Plane"), [""])
sketch10.MapMode = "FlatFace"
sketch10.AttachmentOffset = App.Placement(App.Vector(0, 0, -58.406061), App.Rotation())
sketch10.addGeometry(Part.LineSegment(App.Vector(-15, 18.7, 0), App.Vector(-15, 22.2, 0)), False)
sketch10.addGeometry(Part.LineSegment(App.Vector(-15, 22.2, 0), App.Vector(15, 22.2, 0)), False)
sketch10.addGeometry(Part.LineSegment(App.Vector(15, 22.2, 0), App.Vector(15, 18.7, 0)), False)
sketch10.addGeometry(Part.LineSegment(App.Vector(15, 18.7, 0), App.Vector(-15, 18.7, 0)), False)
sketch10.addConstraint(Sketcher.Constraint("Coincident", 0, 2, 1, 1))
sketch10.addConstraint(Sketcher.Constraint("Coincident", 1, 2, 2, 1))
sketch10.addConstraint(Sketcher.Constraint("Coincident", 2, 2, 3, 1))
sketch10.addConstraint(Sketcher.Constraint("Coincident", 3, 2, 0, 1))
sketch10.addConstraint(Sketcher.Constraint("Vertical", 0))
sketch10.addConstraint(Sketcher.Constraint("Horizontal", 1))
sketch10.addConstraint(Sketcher.Constraint("Vertical", 2))
sketch10.addConstraint(Sketcher.Constraint("Horizontal", 3))
sketch10.addConstraint(Sketcher.Constraint("DistanceX", 1, 1, 1, 2, Q("30 mm")))
sketch10.addConstraint(Sketcher.Constraint("DistanceY", 0, 1, 0, 2, Q("3.5 mm")))
sketch10.addConstraint(Sketcher.Constraint("DistanceX", 0, 2, -1, 1, Q("15 mm")))
sketch10.addConstraint(Sketcher.Constraint("DistanceY", -1, 1, 0, 2, Q("22.155778 mm")))
pocket6 = body.newObject("PartDesign::Pocket", "Pocket005")
pocket6.Profile = sketch10
pocket6.Type = "ThroughAll"
pocket6.Reversed = True

sketch11 = body.newObject("Sketcher::SketchObject", "Sketch010")
sketch11.AttachmentSupport = (doc.getObject("XY_Plane"), [""])
sketch11.MapMode = "FlatFace"
sketch11.AttachmentOffset = App.Placement(App.Vector(0, 0, 6.5), App.Rotation())
sketch11.addGeometry(Part.Circle(App.Vector(0, 0, 0), App.Vector(0, 0, 1), 4), False)
sketch11.addConstraint(Sketcher.Constraint("Coincident", 0, 3, -1, 1))
sketch11.addConstraint(Sketcher.Constraint("Diameter", 0, Q("8 mm")))
pocket7 = body.newObject("PartDesign::Pocket", "Pocket006")
pocket7.Profile = sketch11
pocket7.Length = 2.5

sketch12 = body.newObject("Sketcher::SketchObject", "Sketch011")
sketch12.AttachmentSupport = (doc.getObject("XY_Plane"), [""])
sketch12.MapMode = "FlatFace"
sketch12.addGeometry(Part.Circle(App.Vector(-6.7, -6.7, 0), App.Vector(0, 0, 1), 1.5), False)
sketch12.addGeometry(Part.Circle(App.Vector(-5.7, 5.7, 0), App.Vector(0, 0, 1), 1.5), False)
sketch12.addConstraint(Sketcher.Constraint("Equal", 0, 1))
sketch12.addConstraint(Sketcher.Constraint("Diameter", 0, Q("3 mm")))
sketch12.addConstraint(Sketcher.Constraint("DistanceX", 0, 3, 1, 3, Q("1.06066 mm")))
sketch12.addConstraint(Sketcher.Constraint("DistanceY", 0, 3, 1, 3, Q("12.374369 mm")))
sketch12.addConstraint(Sketcher.Constraint("DistanceX", 0, 3, -1, 1, Q("6.717514 mm")))
sketch12.addConstraint(Sketcher.Constraint("DistanceY", 0, 3, -1, 1, Q("6.717514 mm")))
pocket8 = body.newObject("PartDesign::Pocket", "Pocket007")
pocket8.Profile = sketch12
pocket8.Type = "ThroughAll"
pocket8.Midplane = True
doc.recompute()

fillet = body.newObject("PartDesign::Fillet", "Fillet")
fillet.Base = (pocket8, edges_at(pocket8, [
    (-3, -13.182, 6.5),
    (-4.148, 15.349, -6.5),
    (-3, 15.614, 0),
    (-4.148, 15.349, 6.5),
    (0, -7.75, 6.5),
    (-3, -15.614, 0),
    (11.243, -11.243, -6.5),
    (3, -15.614, 0),
    (11.243, -11.243, 6.5),
    (11.243, 11.243, -6.5),
    (3, 15.614, 0),
    (15.614, 3, 0),
    (11.243, 11.243, 6.5),
    (-5.274, 15, 0),
    (-4.148, -15.349, 6.5),
    (-4.148, -15.349, -6.5),
    (-5.274, -15, 0),
    (-10.444, -15, 6.5),
    (-10.444, -15, -6.5),
    (-22.01, -15, -4.172),
    (-43.406, -15, -1.844),
    (-10.444, 15, 6.5),
    (-10.444, 15, -6.5),
    (-22.01, 15, -4.172),
    (-43.406, 15, -1.844),
    (0, -7.75, -6.5),
    (-3, -13.182, -6.5),
    (-12.461, -4.452, -6.5),
    (-12.461, 4.452, 6.5),
    (-7.75, 0, -6.5),
    (-12.461, 4.452, -6.5),
    (-12.461, -4.452, 6.5),
    (-7.75, 0, 6.5),
    (-3, 13.182, -6.5),
    (0, 7.75, -6.5),
    (3, 13.182, -6.5),
    (3, -13.182, 6.5),
    (-20.58, 15, 12.578),
    (-20.58, -15, 12.578),
    (-41.976, 15, 18.656),
    (13.182, 3, -6.5),
    (-25.546, 0, 18.656),
    (-41.976, -15, 18.656),
    (7.75, 0, -6.5),
    (13.182, -3, -6.5),
    (3, -13.182, -6.5),
    (13.182, -3, 6.5),
    (7.75, 0, 6.5),
    (13.182, 3, 6.5),
    (3, 13.182, 6.5),
    (0, 7.75, 6.5),
    (-3, 13.182, 6.5),
]))
fillet.Radius = 1

doc.recompute()
